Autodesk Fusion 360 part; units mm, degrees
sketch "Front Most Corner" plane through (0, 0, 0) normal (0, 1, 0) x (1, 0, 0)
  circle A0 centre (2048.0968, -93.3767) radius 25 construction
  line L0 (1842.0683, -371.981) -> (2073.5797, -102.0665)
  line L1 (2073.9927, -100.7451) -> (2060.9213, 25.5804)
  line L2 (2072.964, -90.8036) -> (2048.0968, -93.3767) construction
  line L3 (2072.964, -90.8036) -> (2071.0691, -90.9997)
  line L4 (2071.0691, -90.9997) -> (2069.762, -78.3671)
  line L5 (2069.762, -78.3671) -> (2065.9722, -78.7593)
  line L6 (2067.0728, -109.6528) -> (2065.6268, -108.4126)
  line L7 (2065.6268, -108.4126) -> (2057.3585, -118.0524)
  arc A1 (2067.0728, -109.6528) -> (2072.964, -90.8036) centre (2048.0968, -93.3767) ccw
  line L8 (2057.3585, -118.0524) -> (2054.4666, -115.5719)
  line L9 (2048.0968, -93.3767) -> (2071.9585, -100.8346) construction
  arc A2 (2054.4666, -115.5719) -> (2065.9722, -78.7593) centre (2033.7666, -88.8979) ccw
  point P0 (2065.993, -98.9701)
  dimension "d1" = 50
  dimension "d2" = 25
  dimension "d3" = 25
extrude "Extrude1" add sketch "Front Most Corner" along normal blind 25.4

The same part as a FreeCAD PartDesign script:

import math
import FreeCAD as App
import Part
import Sketcher

V = App.Vector
Q = App.Units.Quantity

doc = App.newDocument("Part")
params = doc.addObject("Spreadsheet::Sheet", "Params")
for row, (alias, value) in enumerate([
    ("sketch1_length", "0.5 in"),
    ("sketch1_length2", "0.5 in"),
    ("sketch1_length3", "0.15 in"),
    ("sketch1_length4", "0.15 in"),
    ("sketch1_length5", "0.075 in"),
    ("pad1_length", "1 in"),
], start=1):
    params.set(f"A{row}", alias)
    params.set(f"B{row}", "=" + value)
    params.setAlias(f"B{row}", alias)

body = doc.addObject("PartDesign::Body", "Body")

sketch1 = doc.addObject("Sketcher::SketchObject", "Sketch")
body.addObject(sketch1)
sketch1.AttachmentSupport = (doc.XZ_Plane, [""])
sketch1.MapMode = "FlatFace"
sketch1.addGeometry([
    Part.ArcOfCircle(Part.Circle(V(2048.0968, 93.3767, 0), V(0, 0, 1), 25), math.radians(-5.90758), math.radians(40.620361)),
    Part.LineSegment(V(2072.964, 90.8036, 0), V(2071.0691, 90.9997, 0)),
    Part.LineSegment(V(2071.0691, 90.9997, 0), V(2069.762, 78.3671, 0)),
    Part.LineSegment(V(2069.762, 78.3671, 0), V(2065.9722, 78.7593, 0)),
    Part.ArcOfCircle(Part.Circle(V(2033.7666, 88.8979, 0), V(0, 0, 1), 33.763772), math.radians(-17.474451), math.radians(52.187229)),
    Part.LineSegment(V(2054.4666, 115.5719, 0), V(2057.3585, 118.0524, 0)),
    Part.LineSegment(V(2057.3585, 118.0524, 0), V(2065.6268, 108.4126, 0)),
    Part.LineSegment(V(2065.6268, 108.4126, 0), V(2067.0728, 109.6528, 0)),
], False)
sketch1.addConstraint([
    Sketcher.Constraint("Coincident", 0, 1, 1, 1),
    Sketcher.Constraint("Coincident", 1, 2, 2, 1),
    Sketcher.Constraint("Coincident", 2, 2, 3, 1),
    Sketcher.Constraint("Coincident", 3, 2, 4, 1),
    Sketcher.Constraint("Coincident", 4, 2, 5, 1),
    Sketcher.Constraint("Coincident", 5, 2, 6, 1),
    Sketcher.Constraint("Coincident", 6, 2, 7, 1),
    Sketcher.Constraint("Coincident", 7, 2, 0, 2),
    Sketcher.Constraint("Radius", 0, 25.0),
    Sketcher.Constraint("Distance", 2, Q("0.5 in")),
    Sketcher.Constraint("Distance", 6, Q("0.5 in")),
    Sketcher.Constraint("Distance", 3, Q("0.15 in")),
    Sketcher.Constraint("Distance", 5, Q("0.15 in")),
    Sketcher.Constraint("Radius", 4, 33.7638),
    Sketcher.Constraint("Distance", 1, Q("0.075 in")),
    Sketcher.Constraint("Distance", 7, Q("0.075 in")),
    Sketcher.Constraint("DistanceY", 1, 2, 7, 2, Q("0.7343701 in")),
    Sketcher.Constraint("DistanceX", -1, 1, 2, 2, Q("81.4867 in")),
    Sketcher.Constraint("DistanceX", -1, 1, 3, 2, Q("81.3375 in")),
    Sketcher.Constraint("DistanceX", -1, 1, 4, 2, Q("80.8845 in")),
    Sketcher.Constraint("DistanceX", -1, 1, 6, 2, Q("81.3239 in")),
    Sketcher.Constraint("DistanceY", 0, 1, 0, 3, Q("0.1013 in")),
    Sketcher.Constraint("DistanceX", 4, 3, 0, 1, Q("1.5432 in")),
    Sketcher.Constraint("DistanceX", 1, 2, 0, 1, Q("0.0746 in")),
    Sketcher.Constraint("DistanceY", 2, 2, 4, 3, Q("0.4146 in")),
    Sketcher.Constraint("DistanceY", -1, 1, 0, 3, 93.3767),
])
sketch1.setExpression("Constraints[9]", "Params.sketch1_length")
sketch1.setExpression("Constraints[10]", "Params.sketch1_length2")
sketch1.setExpression("Constraints[11]", "Params.sketch1_length3")
sketch1.setExpression("Constraints[12]", "Params.sketch1_length4")
sketch1.setExpression("Constraints[14]", "Params.sketch1_length5")
pad1 = doc.addObject("PartDesign::Pad", "Pad")
body.addObject(pad1)
pad1.Profile = sketch1
pad1.setExpression("Length", "Params.pad1_length")
pad1.Reversed = True

doc.recompute()
